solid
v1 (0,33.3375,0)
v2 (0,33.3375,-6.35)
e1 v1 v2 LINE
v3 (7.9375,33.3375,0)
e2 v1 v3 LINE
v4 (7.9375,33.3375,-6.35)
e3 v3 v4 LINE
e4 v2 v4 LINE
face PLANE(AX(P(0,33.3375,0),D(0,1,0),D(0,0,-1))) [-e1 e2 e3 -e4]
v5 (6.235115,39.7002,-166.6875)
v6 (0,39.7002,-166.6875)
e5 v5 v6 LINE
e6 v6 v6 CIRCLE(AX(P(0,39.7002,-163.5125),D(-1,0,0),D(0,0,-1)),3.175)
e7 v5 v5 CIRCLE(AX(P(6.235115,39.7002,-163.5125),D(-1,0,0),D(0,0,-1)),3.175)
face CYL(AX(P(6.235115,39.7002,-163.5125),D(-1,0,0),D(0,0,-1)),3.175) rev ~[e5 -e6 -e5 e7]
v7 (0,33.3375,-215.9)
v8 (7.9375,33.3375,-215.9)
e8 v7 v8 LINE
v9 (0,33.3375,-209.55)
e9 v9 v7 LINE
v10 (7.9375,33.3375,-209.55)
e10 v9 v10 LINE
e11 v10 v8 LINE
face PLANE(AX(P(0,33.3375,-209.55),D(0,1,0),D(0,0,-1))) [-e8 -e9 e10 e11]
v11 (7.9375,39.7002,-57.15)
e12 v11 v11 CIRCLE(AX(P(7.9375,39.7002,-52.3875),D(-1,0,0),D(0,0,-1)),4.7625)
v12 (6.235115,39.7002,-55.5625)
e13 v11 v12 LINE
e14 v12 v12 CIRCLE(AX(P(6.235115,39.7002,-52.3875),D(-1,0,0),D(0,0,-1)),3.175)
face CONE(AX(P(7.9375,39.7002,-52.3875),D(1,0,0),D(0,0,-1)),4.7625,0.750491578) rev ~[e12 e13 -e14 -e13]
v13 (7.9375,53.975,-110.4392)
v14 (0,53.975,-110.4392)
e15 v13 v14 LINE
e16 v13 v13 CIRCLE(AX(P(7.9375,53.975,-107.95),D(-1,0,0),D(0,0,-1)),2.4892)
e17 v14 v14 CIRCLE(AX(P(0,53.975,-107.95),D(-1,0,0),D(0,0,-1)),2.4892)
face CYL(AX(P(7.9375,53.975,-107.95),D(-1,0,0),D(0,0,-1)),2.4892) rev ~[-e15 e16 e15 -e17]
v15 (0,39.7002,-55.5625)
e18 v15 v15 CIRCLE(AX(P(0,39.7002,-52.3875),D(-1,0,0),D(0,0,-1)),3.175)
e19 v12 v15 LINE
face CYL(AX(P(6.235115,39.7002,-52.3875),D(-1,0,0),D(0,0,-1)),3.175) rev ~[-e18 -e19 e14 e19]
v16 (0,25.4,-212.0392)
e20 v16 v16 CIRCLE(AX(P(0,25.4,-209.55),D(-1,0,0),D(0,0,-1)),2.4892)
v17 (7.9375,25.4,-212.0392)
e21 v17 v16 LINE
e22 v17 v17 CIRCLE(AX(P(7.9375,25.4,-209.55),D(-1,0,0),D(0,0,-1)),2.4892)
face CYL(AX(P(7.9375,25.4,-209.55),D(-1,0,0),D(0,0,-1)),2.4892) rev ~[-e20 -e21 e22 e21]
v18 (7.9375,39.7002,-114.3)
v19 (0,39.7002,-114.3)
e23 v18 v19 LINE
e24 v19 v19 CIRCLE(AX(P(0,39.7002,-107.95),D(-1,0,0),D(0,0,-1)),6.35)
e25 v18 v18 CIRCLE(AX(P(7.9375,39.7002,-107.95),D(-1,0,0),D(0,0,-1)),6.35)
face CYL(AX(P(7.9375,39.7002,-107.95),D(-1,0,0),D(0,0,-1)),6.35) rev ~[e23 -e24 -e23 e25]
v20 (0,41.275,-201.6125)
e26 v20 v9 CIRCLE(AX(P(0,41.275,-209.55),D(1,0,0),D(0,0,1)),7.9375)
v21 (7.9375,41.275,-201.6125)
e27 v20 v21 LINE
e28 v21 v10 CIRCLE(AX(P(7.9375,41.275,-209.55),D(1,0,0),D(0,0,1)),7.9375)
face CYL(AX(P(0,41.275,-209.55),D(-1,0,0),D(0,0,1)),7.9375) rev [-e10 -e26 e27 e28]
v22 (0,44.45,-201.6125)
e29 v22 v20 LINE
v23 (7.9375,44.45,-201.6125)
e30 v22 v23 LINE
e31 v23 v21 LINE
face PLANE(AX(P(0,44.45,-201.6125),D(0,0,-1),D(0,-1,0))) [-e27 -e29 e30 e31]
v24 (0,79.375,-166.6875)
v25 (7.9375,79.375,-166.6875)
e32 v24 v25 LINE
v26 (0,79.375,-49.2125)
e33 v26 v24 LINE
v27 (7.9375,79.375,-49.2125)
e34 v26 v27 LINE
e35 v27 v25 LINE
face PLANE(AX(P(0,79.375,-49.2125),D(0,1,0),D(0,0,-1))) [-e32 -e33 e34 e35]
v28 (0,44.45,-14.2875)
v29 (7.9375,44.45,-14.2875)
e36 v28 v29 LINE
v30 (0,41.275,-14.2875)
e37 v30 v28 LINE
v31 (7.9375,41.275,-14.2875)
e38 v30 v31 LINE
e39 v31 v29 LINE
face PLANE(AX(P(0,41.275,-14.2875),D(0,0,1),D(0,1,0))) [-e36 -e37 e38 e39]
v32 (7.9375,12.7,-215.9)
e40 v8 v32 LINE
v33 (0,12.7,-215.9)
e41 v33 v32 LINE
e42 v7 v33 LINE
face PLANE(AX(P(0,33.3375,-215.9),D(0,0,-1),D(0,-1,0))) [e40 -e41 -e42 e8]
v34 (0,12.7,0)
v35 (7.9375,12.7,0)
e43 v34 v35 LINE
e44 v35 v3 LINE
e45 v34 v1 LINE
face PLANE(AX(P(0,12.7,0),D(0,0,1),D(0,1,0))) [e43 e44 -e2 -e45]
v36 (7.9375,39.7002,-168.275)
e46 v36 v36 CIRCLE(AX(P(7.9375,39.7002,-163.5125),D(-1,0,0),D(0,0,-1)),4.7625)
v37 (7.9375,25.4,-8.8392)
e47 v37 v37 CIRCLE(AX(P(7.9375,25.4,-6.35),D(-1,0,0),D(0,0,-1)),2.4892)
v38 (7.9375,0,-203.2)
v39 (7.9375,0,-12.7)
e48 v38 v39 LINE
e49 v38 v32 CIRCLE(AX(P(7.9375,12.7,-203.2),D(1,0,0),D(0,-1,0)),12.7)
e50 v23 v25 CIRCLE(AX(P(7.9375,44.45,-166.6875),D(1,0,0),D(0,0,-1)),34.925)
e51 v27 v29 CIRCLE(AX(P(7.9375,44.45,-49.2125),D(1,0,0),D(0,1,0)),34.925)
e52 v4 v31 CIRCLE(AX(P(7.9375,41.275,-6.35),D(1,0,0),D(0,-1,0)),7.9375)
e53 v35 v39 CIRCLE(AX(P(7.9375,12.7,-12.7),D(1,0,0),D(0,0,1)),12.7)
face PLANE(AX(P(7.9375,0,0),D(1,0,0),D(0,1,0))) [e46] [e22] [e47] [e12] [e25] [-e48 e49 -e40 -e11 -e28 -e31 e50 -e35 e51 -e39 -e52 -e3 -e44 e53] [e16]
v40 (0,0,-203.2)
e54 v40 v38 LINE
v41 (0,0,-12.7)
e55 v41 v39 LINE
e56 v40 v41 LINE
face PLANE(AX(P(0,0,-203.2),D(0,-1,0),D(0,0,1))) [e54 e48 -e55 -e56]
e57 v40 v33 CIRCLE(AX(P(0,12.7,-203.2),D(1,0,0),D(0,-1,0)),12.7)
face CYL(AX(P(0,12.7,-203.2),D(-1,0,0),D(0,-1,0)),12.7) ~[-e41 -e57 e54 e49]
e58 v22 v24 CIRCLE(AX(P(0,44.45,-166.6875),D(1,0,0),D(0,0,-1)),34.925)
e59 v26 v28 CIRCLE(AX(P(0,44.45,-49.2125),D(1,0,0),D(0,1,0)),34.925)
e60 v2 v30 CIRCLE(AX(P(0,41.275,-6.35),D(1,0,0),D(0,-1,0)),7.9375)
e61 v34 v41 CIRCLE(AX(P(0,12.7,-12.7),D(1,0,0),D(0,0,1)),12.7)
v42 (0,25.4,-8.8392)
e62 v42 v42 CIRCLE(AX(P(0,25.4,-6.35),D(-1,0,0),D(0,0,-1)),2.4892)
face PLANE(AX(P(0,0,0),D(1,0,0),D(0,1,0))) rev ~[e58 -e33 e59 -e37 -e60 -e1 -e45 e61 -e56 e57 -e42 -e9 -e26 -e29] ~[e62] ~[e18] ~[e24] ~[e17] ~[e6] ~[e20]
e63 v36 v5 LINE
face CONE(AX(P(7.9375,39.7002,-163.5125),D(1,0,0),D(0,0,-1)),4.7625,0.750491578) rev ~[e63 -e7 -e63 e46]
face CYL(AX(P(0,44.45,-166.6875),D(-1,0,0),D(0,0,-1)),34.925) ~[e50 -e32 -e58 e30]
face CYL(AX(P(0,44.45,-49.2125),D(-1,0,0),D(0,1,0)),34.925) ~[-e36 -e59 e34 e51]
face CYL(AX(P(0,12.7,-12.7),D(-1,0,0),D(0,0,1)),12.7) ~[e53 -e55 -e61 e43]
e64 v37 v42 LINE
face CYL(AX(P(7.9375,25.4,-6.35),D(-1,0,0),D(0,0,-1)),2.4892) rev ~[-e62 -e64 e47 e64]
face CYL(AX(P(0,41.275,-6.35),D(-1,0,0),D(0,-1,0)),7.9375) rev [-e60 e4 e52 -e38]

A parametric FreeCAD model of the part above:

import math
import FreeCAD as App
import Part
import Sketcher
Q = App.Units.Quantity

doc = App.newDocument("Part")
body = doc.addObject("PartDesign::Body", "Body")

sketch1 = body.newObject("Sketcher::SketchObject", "Sketch")
sketch1.AttachmentSupport = (doc.getObject("YZ_Plane"), [""])
sketch1.MapMode = "FlatFace"
sketch1.addGeometry(Part.LineSegment(App.Vector(33.3, 0, 0), App.Vector(12.7, 0, 0)), False)
sketch1.addGeometry(Part.ArcOfCircle(Part.Circle(App.Vector(12.7, -12.7, 0), App.Vector(0, 0, 1), 12.7), math.radians(90), math.radians(180)), False)
sketch1.addGeometry(Part.LineSegment(App.Vector(0, -12.7, 0), App.Vector(0, -203.2, 0)), False)
sketch1.addGeometry(Part.ArcOfCircle(Part.Circle(App.Vector(12.7, -203.2, 0), App.Vector(0, 0, 1), 12.7), math.radians(180), math.radians(270)), False)
sketch1.addGeometry(Part.LineSegment(App.Vector(12.7, -215.9, 0), App.Vector(33.3, -215.9, 0)), False)
sketch1.addGeometry(Part.LineSegment(App.Vector(33.3, -215.9, 0), App.Vector(33.3, -209.6, 0)), False)
sketch1.addGeometry(Part.ArcOfCircle(Part.Circle(App.Vector(41.3, -209.6, 0), App.Vector(0, 0, 1), 7.9), math.radians(90), math.radians(180)), False)
sketch1.addGeometry(Part.LineSegment(App.Vector(41.3, -201.6, 0), App.Vector(44.5, -201.6, 0)), False)
sketch1.addGeometry(Part.ArcOfCircle(Part.Circle(App.Vector(44.5, -166.7, 0), App.Vector(0, 0, 1), 34.9), math.radians(-90), math.radians(0)), False)
sketch1.addGeometry(Part.LineSegment(App.Vector(79.4, -166.7, 0), App.Vector(79.4, -49.2, 0)), False)
sketch1.addGeometry(Part.ArcOfCircle(Part.Circle(App.Vector(44.5, -49.2, 0), App.Vector(0, 0, 1), 34.9), math.radians(0), math.radians(90)), False)
sketch1.addGeometry(Part.LineSegment(App.Vector(44.5, -14.3, 0), App.Vector(41.3, -14.3, 0)), False)
sketch1.addGeometry(Part.ArcOfCircle(Part.Circle(App.Vector(41.3, -6.3, 0), App.Vector(0, 0, 1), 7.9), math.radians(180), math.radians(270)), False)
sketch1.addGeometry(Part.LineSegment(App.Vector(33.3, -6.3, 0), App.Vector(33.3, 0, 0)), False)
sketch1.addConstraint(Sketcher.Constraint("Tangent", 0, 2, 1, 1))
sketch1.addConstraint(Sketcher.Constraint("Tangent", 1, 2, 2, 1))
sketch1.addConstraint(Sketcher.Constraint("Tangent", 2, 2, 3, 1))
sketch1.addConstraint(Sketcher.Constraint("Tangent", 3, 2, 4, 1))
sketch1.addConstraint(Sketcher.Constraint("Coincident", 4, 2, 5, 1))
sketch1.addConstraint(Sketcher.Constraint("Tangent", 5, 2, 6, 2))
sketch1.addConstraint(Sketcher.Constraint("Tangent", 6, 1, 7, 1))
sketch1.addConstraint(Sketcher.Constraint("Tangent", 7, 2, 8, 1))
sketch1.addConstraint(Sketcher.Constraint("Tangent", 8, 2, 9, 1))
sketch1.addConstraint(Sketcher.Constraint("Tangent", 9, 2, 10, 1))
sketch1.addConstraint(Sketcher.Constraint("Tangent", 10, 2, 11, 1))
sketch1.addConstraint(Sketcher.Constraint("Tangent", 11, 2, 12, 2))
sketch1.addConstraint(Sketcher.Constraint("Tangent", 12, 1, 13, 1))
sketch1.addConstraint(Sketcher.Constraint("Coincident", 13, 2, 0, 1))
sketch1.addConstraint(Sketcher.Constraint("Horizontal", 0))
sketch1.addConstraint(Sketcher.Constraint("Vertical", 2))
sketch1.addConstraint(Sketcher.Constraint("Horizontal", 4))
sketch1.addConstraint(Sketcher.Constraint("Vertical", 5))
sketch1.addConstraint(Sketcher.Constraint("Horizontal", 7))
sketch1.addConstraint(Sketcher.Constraint("Vertical", 9))
sketch1.addConstraint(Sketcher.Constraint("Horizontal", 11))
sketch1.addConstraint(Sketcher.Constraint("Vertical", 13))
sketch1.addConstraint(Sketcher.Constraint("Equal", 1, 3))
sketch1.addConstraint(Sketcher.Constraint("Equal", 8, 10))
sketch1.addConstraint(Sketcher.Constraint("Equal", 6, 12))
sketch1.addConstraint(Sketcher.Constraint("PointOnObject", 0, 2, -1))
sketch1.addConstraint(Sketcher.Constraint("PointOnObject", 1, 2, -2))
sketch1.addConstraint(Sketcher.Constraint("Vertical", 6, 3, 12, 3))
sketch1.addConstraint(Sketcher.Constraint("Equal", 5, 13))
sketch1.addConstraint(Sketcher.Constraint("Radius", 1, Q("0.5 in")))
sketch1.addConstraint(Sketcher.Constraint("Radius", 6, Q("0.3125 in")))
sketch1.addConstraint(Sketcher.Constraint("Radius", 8, Q("1.375 in")))
sketch1.addConstraint(Sketcher.Constraint("DistanceY", 3, 2, -1, 1, Q("8.5 in")))
sketch1.addConstraint(Sketcher.Constraint("DistanceX", -1, 1, 4, 2, Q("1.3125 in")))
sketch1.addConstraint(Sketcher.Constraint("DistanceX", -1, 1, 8, 2, Q("3.125 in")))
sketch1.addConstraint(Sketcher.Constraint("DistanceY", 10, 2, -1, 1, Q("0.5625 in")))
pad1 = body.newObject("PartDesign::Pad", "Pad")
pad1.Profile = sketch1
pad1.Length = Q("0.3125 in")

sketch2 = body.newObject("Sketcher::SketchObject", "Sketch001")
sketch2.AttachmentSupport = (doc.getObject("YZ_Plane"), [""])
sketch2.MapMode = "FlatFace"
sketch2.AttachmentOffset = App.Placement(App.Vector(0, 0, 0.3125 * 25.4), App.Rotation())
sketch2.addGeometry(Part.Circle(App.Vector(40, -108, 0), App.Vector(0, 0, 1), 6), False)
sketch2.addConstraint(Sketcher.Constraint("Diameter", 0, Q("0.5 in")))
sketch2.addConstraint(Sketcher.Constraint("DistanceY", 0, 3, -1, 1, Q("4.25 in")))
sketch2.addConstraint(Sketcher.Constraint("DistanceX", -1, 1, 0, 3, Q("1.563 in")))
doc.recompute()
hole = body.newObject("PartDesign::Hole", "Hole")
hole.Profile = sketch2
hole.ThreadType = "None"
hole.Diameter = Q("0.5 in")
hole.DepthType = "Dimension"
hole.Depth = Q("1 in")
hole.DrillPoint = "Angled"
hole.DrillPointAngle = 118

sketch3 = body.newObject("Sketcher::SketchObject", "Sketch002")
sketch3.AttachmentSupport = (doc.getObject("YZ_Plane"), [""])
sketch3.MapMode = "FlatFace"
sketch3.AttachmentOffset = App.Placement(App.Vector(0, 0, 0.3125 * 25.4), App.Rotation())
sketch3.addGeometry(Part.Circle(App.Vector(54, -108, 0), App.Vector(0, 0, 1), 2.5), False)
sketch3.addConstraint(Sketcher.Constraint("Diameter", 0, Q("0.196 in")))
sketch3.addConstraint(Sketcher.Constraint("DistanceY", 0, 3, -1, 1, Q("4.25 in")))
sketch3.addConstraint(Sketcher.Constraint("DistanceX", -1, 1, 0, 3, Q("2.125 in")))
doc.recompute()
hole2 = body.newObject("PartDesign::Hole", "Hole001")
hole2.Profile = sketch3
hole2.ThreadType = "None"
hole2.Diameter = Q("0.196 in")
hole2.DepthType = "Dimension"
hole2.Depth = Q("1 in")
hole2.DrillPoint = "Angled"
hole2.DrillPointAngle = 118

sketch4 = body.newObject("Sketcher::SketchObject", "Sketch003")
sketch4.AttachmentSupport = (doc.getObject("YZ_Plane"), [""])
sketch4.MapMode = "FlatFace"
sketch4.AttachmentOffset = App.Placement(App.Vector(0, 0, 0.3125 * 25.4), App.Rotation())
sketch4.addGeometry(Part.Circle(App.Vector(25.4, -6.3, 0), App.Vector(0, 0, 1), 2.5), False)
sketch4.addGeometry(Part.Circle(App.Vector(25.4, -209.6, 0), App.Vector(0, 0, 1), 2.5), False)
sketch4.addConstraint(Sketcher.Constraint("Equal", 0, 1))
sketch4.addConstraint(Sketcher.Constraint("Vertical", 0, 3, 1, 3))
sketch4.addConstraint(Sketcher.Constraint("Diameter", 0, Q("0.196 in")))
sketch4.addConstraint(Sketcher.Constraint("DistanceX", -1, 1, 0, 3, Q("1 in")))
sketch4.addConstraint(Sketcher.Constraint("DistanceY", 1, 3, 0, 3, Q("8 in")))
sketch4.addConstraint(Sketcher.Constraint("DistanceY", 0, 3, -1, 1, Q("0.25 in")))
doc.recompute()
hole3 = body.newObject("PartDesign::Hole", "Hole002")
hole3.Profile = sketch4
hole3.ThreadType = "None"
hole3.Diameter = Q("0.196 in")
hole3.DepthType = "Dimension"
hole3.Depth = Q("1 in")
hole3.DrillPoint = "Angled"
hole3.DrillPointAngle = 118

sketch5 = body.newObject("Sketcher::SketchObject", "Sketch004")
sketch5.AttachmentSupport = (doc.getObject("YZ_Plane"), [""])
sketch5.MapMode = "FlatFace"
sketch5.AttachmentOffset = App.Placement(App.Vector(0, 0, 0.3125 * 25.4), App.Rotation())
sketch5.addGeometry(Part.Circle(App.Vector(39.7, -52.4, 0), App.Vector(0, 0, 1), 3.2), False)
sketch5.addGeometry(Part.Circle(App.Vector(39.7, -163.5, 0), App.Vector(0, 0, 1), 3.2), False)
sketch5.addConstraint(Sketcher.Constraint("Equal", 0, 1))
sketch5.addConstraint(Sketcher.Constraint("Vertical", 0, 3, 1, 3))
sketch5.addConstraint(Sketcher.Constraint("Diameter", 0, Q("0.25 in")))
sketch5.addConstraint(Sketcher.Constraint("DistanceX", -1, 1, 0, 3, Q("1.563 in")))
sketch5.addConstraint(Sketcher.Constraint("DistanceY", 0, 3, -1, 1, Q("2.0625 in")))
sketch5.addConstraint(Sketcher.Constraint("DistanceY", 1, 3, -1, 1, Q("6.4375 in")))
doc.recompute()
hole4 = body.newObject("PartDesign::Hole", "Hole003")
hole4.Profile = sketch5
hole4.ThreadType = "None"
hole4.Diameter = Q("0.25 in")
hole4.DepthType = "Dimension"
hole4.Depth = Q("1 in")
hole4.DrillPoint = "Angled"
hole4.DrillPointAngle = 118
hole4.HoleCutType = "Countersink"
hole4.HoleCutDiameter = Q("0.375 in")
hole4.HoleCutCountersinkAngle = 86

doc.recompute()
